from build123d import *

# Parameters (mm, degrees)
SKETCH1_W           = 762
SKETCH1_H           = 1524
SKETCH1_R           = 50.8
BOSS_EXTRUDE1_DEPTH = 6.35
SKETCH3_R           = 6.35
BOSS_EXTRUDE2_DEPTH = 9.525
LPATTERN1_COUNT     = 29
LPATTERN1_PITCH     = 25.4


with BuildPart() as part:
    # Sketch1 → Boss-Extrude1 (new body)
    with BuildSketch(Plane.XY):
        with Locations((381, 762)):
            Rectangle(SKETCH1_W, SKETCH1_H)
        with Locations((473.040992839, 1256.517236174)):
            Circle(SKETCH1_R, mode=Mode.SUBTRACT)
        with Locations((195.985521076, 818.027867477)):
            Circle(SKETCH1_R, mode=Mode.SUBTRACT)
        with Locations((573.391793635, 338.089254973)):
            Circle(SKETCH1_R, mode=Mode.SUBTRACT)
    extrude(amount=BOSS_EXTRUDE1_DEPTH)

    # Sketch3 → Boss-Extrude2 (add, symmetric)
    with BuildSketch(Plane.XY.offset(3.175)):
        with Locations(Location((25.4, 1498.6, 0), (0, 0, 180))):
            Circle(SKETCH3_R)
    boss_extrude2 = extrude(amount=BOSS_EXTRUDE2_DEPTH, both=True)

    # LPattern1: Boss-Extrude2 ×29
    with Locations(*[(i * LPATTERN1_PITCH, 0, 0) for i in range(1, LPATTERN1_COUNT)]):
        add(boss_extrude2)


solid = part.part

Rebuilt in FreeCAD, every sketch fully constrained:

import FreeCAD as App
import Part
import Sketcher
from FreeCAD import Vector
Q = App.Units.Quantity


def add_polygon(sketch, points):
    """Adds a closed chain of lines whose ends are joined by coincident constraints."""
    first, n = sketch.GeometryCount, len(points)
    for a, b in zip(points, points[1:] + points[:1]):
        sketch.addGeometry(Part.LineSegment(App.Vector(*a, 0), App.Vector(*b, 0)), False)
    for i in range(n):
        sketch.addConstraint(Sketcher.Constraint("Coincident", first + i, 2, first + (i + 1) % n, 1))

doc = App.newDocument("Part")
body = doc.addObject("PartDesign::Body", "Body")

# Sketch on XY plane
sketch1 = doc.addObject("Sketcher::SketchObject", "Sketch")
body.addObject(sketch1)
sketch1.AttachmentSupport = (doc.XY_Plane, [""])
sketch1.MapMode = "FlatFace"
add_polygon(sketch1, [(0, 1524), (0, 0), (762, 0), (762, 1524)])  # lines 0-3
sketch1.addGeometry(Part.Circle(Vector(573, 338, 0), Vector(0, 0, 1), 51), False)  # 4
sketch1.addGeometry(Part.Circle(Vector(196, 818, 0), Vector(0, 0, 1), 51), False)  # 5
sketch1.addGeometry(Part.Circle(Vector(473, 1257, 0), Vector(0, 0, 1), 51), False)  # 6
sketch1.addConstraint(Sketcher.Constraint("Vertical", 0))
sketch1.addConstraint(Sketcher.Constraint("Horizontal", 1))
sketch1.addConstraint(Sketcher.Constraint("Vertical", 2))
sketch1.addConstraint(Sketcher.Constraint("Horizontal", 3))
sketch1.addConstraint(Sketcher.Constraint("Coincident", 0, 2, -1, 1))
sketch1.addConstraint(Sketcher.Constraint("Equal", 4, 5))
sketch1.addConstraint(Sketcher.Constraint("Equal", 5, 6))
sketch1.addConstraint(Sketcher.Constraint("Diameter", 4, Q("4 in")))
sketch1.addConstraint(Sketcher.Constraint("DistanceX", 1, 1, 1, 2, Q("30 in")))
sketch1.addConstraint(Sketcher.Constraint("DistanceY", 0, 2, 0, 1, Q("60 in")))
sketch1.addConstraint(Sketcher.Constraint("DistanceX", 6, 3, 4, 3, 100.350801))
sketch1.addConstraint(Sketcher.Constraint("DistanceX", -1, 1, 5, 3, 195.985521))
sketch1.addConstraint(Sketcher.Constraint("DistanceX", 5, 3, 6, 3, 277.055472))
sketch1.addConstraint(Sketcher.Constraint("DistanceY", 5, 3, 6, 3, 438.489369))
sketch1.addConstraint(Sketcher.Constraint("DistanceY", 4, 3, 6, 3, 918.427981))
sketch1.addConstraint(Sketcher.Constraint("DistanceY", -1, 1, 4, 3, 338.089255))
pad1 = doc.addObject("PartDesign::Pad", "Pad")
body.addObject(pad1)
pad1.Profile = sketch1
pad1.Length = Q("0.25 in")

# Sketch on XY plane
sketch2 = doc.addObject("Sketcher::SketchObject", "Sketch001")
body.addObject(sketch2)
sketch2.AttachmentSupport = (doc.XY_Plane, [""])
sketch2.MapMode = "FlatFace"
sketch2.AttachmentOffset = App.Placement(Vector(0, 0, 0.125 * 25.4), App.Rotation())
sketch2.addGeometry(Part.Circle(Vector(25, 1499, 0), Vector(0, 0, 1), 6), False)
sketch2.addConstraint(Sketcher.Constraint("Diameter", 0, Q("0.5 in")))
sketch2.addConstraint(Sketcher.Constraint("DistanceX", -1, 1, 0, 3, Q("1 in")))
sketch2.addConstraint(Sketcher.Constraint("DistanceY", -1, 1, 0, 3, Q("59 in")))
pad2 = doc.addObject("PartDesign::Pad", "Pad001")
body.addObject(pad2)
pad2.Profile = sketch2
pad2.Length = Q("0.75 in")
pad2.Midplane = True
doc.recompute()

linearpattern = doc.addObject("PartDesign::LinearPattern", "LinearPattern")
body.addObject(linearpattern)
linearpattern.Originals = [pad2]
linearpattern.Direction = (doc.X_Axis, [""])
linearpattern.Mode = "offset"
linearpattern.Offset = Q("1 in")
linearpattern.Occurrences = 29
body.Tip = linearpattern

doc.recompute()
